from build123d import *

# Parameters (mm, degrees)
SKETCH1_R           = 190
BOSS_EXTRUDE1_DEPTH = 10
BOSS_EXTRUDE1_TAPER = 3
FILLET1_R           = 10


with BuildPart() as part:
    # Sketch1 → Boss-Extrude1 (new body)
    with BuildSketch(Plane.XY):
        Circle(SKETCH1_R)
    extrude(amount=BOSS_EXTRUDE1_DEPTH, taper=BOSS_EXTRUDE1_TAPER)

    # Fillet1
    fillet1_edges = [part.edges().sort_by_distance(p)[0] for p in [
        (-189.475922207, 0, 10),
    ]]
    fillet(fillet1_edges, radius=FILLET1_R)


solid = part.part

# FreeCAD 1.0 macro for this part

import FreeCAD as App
import Part
import Sketcher


def edges_at(feature, points):
    """Names of the edges that pass closest to the given points."""
    edges = feature.Shape.Edges
    near = lambda p: min(range(len(edges)), key=lambda i: edges[i].distToShape(Part.Vertex(*p))[0])
    return sorted({f"Edge{near(p) + 1}" for p in points})

doc = App.newDocument("Part")
body = doc.addObject("PartDesign::Body", "Body")

sketch1 = body.newObject("Sketcher::SketchObject", "Sketch")
sketch1.AttachmentSupport = (doc.getObject("XY_Plane"), [""])
sketch1.MapMode = "FlatFace"
sketch1.addGeometry(Part.Circle(App.Vector(0, 0, 0), App.Vector(0, 0, 1), 190), False)
sketch1.addConstraint([
    Sketcher.Constraint("Coincident", 0, 3, -1, 1),
    Sketcher.Constraint("Diameter", 0, 380.0),
])
pad1 = body.newObject("PartDesign::Pad", "Pad")
pad1.Profile = sketch1
pad1.Length = 10
pad1.TaperAngle = -3
doc.recompute()

fillet = body.newObject("PartDesign::Fillet", "Fillet")
fillet.Base = (pad1, edges_at(pad1, [(-189.476, 0, 10)]))
fillet.Radius = 10

doc.recompute()
